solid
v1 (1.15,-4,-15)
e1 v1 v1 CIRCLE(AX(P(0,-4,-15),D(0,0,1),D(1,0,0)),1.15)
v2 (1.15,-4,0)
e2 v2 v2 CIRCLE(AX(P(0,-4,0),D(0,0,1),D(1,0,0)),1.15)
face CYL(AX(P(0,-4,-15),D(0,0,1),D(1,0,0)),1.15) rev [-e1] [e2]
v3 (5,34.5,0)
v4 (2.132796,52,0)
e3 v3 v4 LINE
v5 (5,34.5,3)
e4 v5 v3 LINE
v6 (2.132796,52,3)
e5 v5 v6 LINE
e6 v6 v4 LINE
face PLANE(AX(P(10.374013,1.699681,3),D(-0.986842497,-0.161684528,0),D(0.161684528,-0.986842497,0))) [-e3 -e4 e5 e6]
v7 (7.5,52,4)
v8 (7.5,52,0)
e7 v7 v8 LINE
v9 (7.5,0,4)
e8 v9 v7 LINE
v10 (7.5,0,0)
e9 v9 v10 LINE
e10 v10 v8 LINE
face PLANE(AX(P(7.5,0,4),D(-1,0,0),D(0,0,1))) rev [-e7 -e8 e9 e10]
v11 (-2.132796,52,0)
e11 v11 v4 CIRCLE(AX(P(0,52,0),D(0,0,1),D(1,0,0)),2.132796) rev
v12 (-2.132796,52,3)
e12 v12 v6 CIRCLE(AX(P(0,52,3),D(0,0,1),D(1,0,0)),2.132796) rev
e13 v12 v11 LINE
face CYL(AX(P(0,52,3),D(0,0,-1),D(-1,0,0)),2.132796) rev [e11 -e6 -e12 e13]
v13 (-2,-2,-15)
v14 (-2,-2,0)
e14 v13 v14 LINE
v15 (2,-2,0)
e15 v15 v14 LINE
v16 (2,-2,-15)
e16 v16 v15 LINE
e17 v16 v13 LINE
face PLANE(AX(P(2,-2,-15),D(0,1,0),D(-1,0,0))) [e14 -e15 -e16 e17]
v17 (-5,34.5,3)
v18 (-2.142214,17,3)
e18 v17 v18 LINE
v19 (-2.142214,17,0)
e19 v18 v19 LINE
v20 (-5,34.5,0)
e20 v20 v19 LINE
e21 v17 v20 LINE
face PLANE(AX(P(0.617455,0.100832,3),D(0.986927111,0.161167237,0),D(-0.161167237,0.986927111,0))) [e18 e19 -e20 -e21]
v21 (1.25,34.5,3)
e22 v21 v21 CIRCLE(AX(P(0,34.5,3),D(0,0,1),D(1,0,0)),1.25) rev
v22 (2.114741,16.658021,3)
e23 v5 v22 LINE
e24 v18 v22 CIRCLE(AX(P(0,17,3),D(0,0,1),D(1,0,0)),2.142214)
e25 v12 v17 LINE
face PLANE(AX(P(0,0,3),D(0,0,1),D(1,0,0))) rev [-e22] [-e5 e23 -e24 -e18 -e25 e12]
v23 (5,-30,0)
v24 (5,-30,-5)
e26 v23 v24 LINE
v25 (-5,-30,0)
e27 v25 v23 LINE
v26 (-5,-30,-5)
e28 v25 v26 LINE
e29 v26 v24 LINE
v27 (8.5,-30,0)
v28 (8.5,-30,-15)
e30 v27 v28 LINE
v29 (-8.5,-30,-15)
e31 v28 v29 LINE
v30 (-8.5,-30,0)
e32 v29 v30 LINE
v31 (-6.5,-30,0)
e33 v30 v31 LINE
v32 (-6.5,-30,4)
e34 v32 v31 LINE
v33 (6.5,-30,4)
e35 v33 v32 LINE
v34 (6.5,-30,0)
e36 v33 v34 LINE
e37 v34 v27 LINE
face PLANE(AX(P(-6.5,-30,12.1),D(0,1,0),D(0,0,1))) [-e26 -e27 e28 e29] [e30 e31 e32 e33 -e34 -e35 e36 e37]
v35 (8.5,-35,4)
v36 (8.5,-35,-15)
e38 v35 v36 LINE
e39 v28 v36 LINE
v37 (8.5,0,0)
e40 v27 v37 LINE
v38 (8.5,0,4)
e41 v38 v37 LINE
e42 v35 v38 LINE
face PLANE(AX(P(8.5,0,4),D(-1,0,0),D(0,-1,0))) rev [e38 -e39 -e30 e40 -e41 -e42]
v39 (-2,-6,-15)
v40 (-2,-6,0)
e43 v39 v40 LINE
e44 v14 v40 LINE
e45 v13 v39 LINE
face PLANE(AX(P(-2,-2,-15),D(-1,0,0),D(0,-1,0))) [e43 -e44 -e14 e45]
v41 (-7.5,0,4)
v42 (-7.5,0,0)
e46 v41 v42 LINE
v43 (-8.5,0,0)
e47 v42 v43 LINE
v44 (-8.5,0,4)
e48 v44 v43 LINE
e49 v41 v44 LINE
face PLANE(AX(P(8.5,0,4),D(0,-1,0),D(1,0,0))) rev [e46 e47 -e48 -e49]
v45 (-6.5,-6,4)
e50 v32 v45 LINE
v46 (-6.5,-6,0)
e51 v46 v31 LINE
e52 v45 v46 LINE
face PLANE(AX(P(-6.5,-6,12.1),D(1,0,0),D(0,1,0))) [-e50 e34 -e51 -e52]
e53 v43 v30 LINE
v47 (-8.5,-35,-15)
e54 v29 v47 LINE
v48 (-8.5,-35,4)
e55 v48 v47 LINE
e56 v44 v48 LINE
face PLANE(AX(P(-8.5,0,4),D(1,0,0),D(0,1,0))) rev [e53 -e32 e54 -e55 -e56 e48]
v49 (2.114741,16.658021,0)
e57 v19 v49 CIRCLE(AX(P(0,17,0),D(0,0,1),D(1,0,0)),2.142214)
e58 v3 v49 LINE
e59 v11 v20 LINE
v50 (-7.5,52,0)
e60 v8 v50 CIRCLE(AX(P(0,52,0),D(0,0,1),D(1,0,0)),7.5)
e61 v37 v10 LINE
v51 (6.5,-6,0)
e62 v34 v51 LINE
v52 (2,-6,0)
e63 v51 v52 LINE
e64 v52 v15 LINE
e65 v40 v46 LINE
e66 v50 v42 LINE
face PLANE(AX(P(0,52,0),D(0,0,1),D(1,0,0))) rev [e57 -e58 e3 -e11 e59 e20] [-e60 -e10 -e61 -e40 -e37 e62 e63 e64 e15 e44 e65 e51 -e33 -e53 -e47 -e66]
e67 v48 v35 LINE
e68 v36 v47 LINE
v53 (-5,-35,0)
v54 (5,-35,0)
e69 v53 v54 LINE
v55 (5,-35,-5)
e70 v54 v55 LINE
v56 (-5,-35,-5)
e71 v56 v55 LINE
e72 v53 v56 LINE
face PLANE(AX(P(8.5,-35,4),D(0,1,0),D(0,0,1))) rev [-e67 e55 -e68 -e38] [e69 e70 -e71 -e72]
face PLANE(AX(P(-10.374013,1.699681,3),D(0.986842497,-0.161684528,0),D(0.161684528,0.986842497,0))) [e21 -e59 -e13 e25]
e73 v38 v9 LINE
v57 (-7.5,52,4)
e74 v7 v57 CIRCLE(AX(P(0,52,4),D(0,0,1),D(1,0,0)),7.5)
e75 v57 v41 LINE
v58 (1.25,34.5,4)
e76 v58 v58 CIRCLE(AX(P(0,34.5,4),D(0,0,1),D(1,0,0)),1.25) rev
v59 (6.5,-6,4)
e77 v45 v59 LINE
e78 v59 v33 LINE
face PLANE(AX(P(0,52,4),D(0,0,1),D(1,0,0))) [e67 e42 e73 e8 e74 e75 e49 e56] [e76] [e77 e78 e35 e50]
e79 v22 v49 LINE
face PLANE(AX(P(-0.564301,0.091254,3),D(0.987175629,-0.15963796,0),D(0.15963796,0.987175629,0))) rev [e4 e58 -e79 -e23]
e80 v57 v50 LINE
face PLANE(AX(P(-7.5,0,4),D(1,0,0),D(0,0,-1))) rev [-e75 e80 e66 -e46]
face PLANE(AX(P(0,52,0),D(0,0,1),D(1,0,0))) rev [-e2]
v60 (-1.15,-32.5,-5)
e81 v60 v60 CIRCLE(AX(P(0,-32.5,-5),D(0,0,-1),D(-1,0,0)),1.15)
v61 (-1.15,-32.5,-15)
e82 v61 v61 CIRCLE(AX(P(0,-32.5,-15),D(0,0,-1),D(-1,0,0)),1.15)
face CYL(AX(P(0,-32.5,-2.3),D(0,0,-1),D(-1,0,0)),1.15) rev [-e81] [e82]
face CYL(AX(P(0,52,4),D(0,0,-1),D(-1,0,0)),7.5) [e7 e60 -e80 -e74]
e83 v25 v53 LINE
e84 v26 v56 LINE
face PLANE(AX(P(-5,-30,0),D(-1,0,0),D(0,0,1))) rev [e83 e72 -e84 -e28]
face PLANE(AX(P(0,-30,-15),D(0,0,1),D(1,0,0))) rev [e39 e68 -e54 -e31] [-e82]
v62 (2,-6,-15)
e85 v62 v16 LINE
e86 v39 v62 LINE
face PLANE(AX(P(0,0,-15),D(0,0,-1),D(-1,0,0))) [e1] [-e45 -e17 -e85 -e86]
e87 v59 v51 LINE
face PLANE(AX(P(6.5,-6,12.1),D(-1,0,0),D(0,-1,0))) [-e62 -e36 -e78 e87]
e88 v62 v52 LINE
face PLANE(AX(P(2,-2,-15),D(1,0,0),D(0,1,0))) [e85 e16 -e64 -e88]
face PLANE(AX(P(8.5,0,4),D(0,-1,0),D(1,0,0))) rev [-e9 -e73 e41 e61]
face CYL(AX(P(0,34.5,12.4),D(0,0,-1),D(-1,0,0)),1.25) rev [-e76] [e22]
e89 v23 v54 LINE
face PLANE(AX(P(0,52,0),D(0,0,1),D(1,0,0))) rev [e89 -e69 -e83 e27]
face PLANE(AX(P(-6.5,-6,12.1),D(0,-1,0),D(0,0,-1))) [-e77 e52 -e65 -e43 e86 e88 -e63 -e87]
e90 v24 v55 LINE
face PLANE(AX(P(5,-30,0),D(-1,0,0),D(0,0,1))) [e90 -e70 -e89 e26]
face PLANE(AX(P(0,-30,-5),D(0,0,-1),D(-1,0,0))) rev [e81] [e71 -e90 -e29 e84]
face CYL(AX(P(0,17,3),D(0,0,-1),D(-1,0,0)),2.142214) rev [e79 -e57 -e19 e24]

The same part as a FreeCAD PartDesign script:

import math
import FreeCAD as App
import Part
import Sketcher
from FreeCAD import Vector

doc = App.newDocument("Part")
params = doc.addObject("Spreadsheet::Sheet", "Params")
for row, (alias, value) in enumerate([
    ("sketch1_radius", "7.5 mm"),
    ("sketch1_height", "52 mm"),
    ("pad1_length", "4 mm"),
    ("pocket1_length", "3 mm"),
    ("sketch3_diameter", "2.5 mm"),
    ("pocket2_length", "12.4 mm"),
    ("sketch4_width", "17 mm"),
    ("sketch4_height", "35 mm"),
    ("pad2_length", "4 mm"),
    ("sketch5_width", "13 mm"),
    ("sketch5_height", "24 mm"),
    ("pocket3_length", "12.1 mm"),
    ("sketch6_diameter", "2.3 mm"),
    ("sketch6_width", "4 mm"),
    ("pad3_length", "15 mm"),
    ("sketch7_width", "10 mm"),
    ("sketch7_width2", "17 mm"),
    ("sketch7_height", "5 mm"),
    ("sketch7_height2", "15 mm"),
    ("pad4_length", "5 mm"),
    ("sketch8_diameter", "2.3 mm"),
    ("pocket4_length", "12.7 mm"),
], start=1):
    params.set(f"A{row}", alias)
    params.set(f"B{row}", "=" + value)
    params.setAlias(f"B{row}", alias)

body = doc.addObject("PartDesign::Body", "Body")

# Sketch on XY plane
sketch1 = doc.addObject("Sketcher::SketchObject", "Sketch")
body.addObject(sketch1)
sketch1.AttachmentSupport = (doc.XY_Plane, [""])
sketch1.MapMode = "FlatFace"
sketch1.addGeometry([
    Part.LineSegment(Vector(8, 0, 0), Vector(8, 52, 0)),
    Part.ArcOfCircle(Part.Circle(Vector(0, 52, 0), Vector(0, 0, 1), 8), math.radians(0), math.radians(180)),
    Part.LineSegment(Vector(-8, 52, 0), Vector(-8, 0, 0)),
    Part.LineSegment(Vector(-8, 0, 0), Vector(8, 0, 0)),
], False)
sketch1.addConstraint([
    Sketcher.Constraint("Tangent", 0, 2, 1, 1),
    Sketcher.Constraint("Tangent", 1, 2, 2, 1),
    Sketcher.Constraint("Coincident", 2, 2, 3, 1),
    Sketcher.Constraint("Coincident", 3, 2, 0, 1),
    Sketcher.Constraint("Vertical", 0),
    Sketcher.Constraint("Vertical", 2),
    Sketcher.Constraint("Horizontal", 3),
    Sketcher.Constraint("Symmetric", 2, 2, 3, 2, -1, 1),
    Sketcher.Constraint("Radius", 1, 7.5),
    Sketcher.Constraint("DistanceY", 0, 1, 0, 2, 52.0),
])
sketch1.setExpression("Constraints[8]", "Params.sketch1_radius")
sketch1.setExpression("Constraints[9]", "Params.sketch1_height")
pad1 = doc.addObject("PartDesign::Pad", "Pad")
body.addObject(pad1)
pad1.Profile = sketch1
pad1.setExpression("Length", "Params.pad1_length")

# Sketch on XY plane
sketch2 = doc.addObject("Sketcher::SketchObject", "Sketch001")
body.addObject(sketch2)
sketch2.AttachmentSupport = (doc.XY_Plane, [""])
sketch2.MapMode = "FlatFace"
sketch2.addGeometry([
    Part.ArcOfCircle(Part.Circle(Vector(0, 52, 0), Vector(0, 0, 1), 2.1), math.radians(0), math.radians(180)),  # 0
    Part.LineSegment(Vector(-2.1, 52, 0), Vector(-5, 34.5, 0)),  # 1
    Part.LineSegment(Vector(-5, 34.5, 0), Vector(-2.1, 17, 0)),  # 2
    Part.ArcOfCircle(Part.Circle(Vector(0, 17, 0), Vector(0, 0, 1), 2.1), math.radians(180), math.radians(351)),  # 3
    Part.LineSegment(Vector(2.1, 16.7, 0), Vector(5, 34.5, 0)),  # 4
    Part.LineSegment(Vector(5, 34.5, 0), Vector(2.1, 52, 0)),  # 5
], False)
sketch2.addConstraint([
    Sketcher.Constraint("Coincident", 0, 2, 1, 1),
    Sketcher.Constraint("Coincident", 1, 2, 2, 1),
    Sketcher.Constraint("Coincident", 2, 2, 3, 1),
    Sketcher.Constraint("Tangent", 3, 2, 4, 1),
    Sketcher.Constraint("Coincident", 4, 2, 5, 1),
    Sketcher.Constraint("Coincident", 5, 2, 0, 1),
    Sketcher.Constraint("Symmetric", 1, 2, 4, 2, -2),
    Sketcher.Constraint("Symmetric", 0, 2, 5, 2, -2),
    Sketcher.Constraint("PointOnObject", 3, 3, -2),
    Sketcher.Constraint("Horizontal", 3, 3, 2, 2),
    Sketcher.Constraint("DistanceY", -1, 1, 0, 3, 52.0),
    Sketcher.Constraint("DistanceY", -1, 1, 3, 3, 17.0),
    Sketcher.Constraint("DistanceY", -1, 1, 0, 2, 52.0),
    Sketcher.Constraint("DistanceX", 1, 2, -1, 1, 5.0),
    Sketcher.Constraint("DistanceY", -1, 1, 1, 2, 34.5),
    Sketcher.Constraint("Radius", 0, 2.132796),
    Sketcher.Constraint("Radius", 3, 2.142214),
])
pocket1 = doc.addObject("PartDesign::Pocket", "Pocket")
body.addObject(pocket1)
pocket1.Profile = sketch2
pocket1.setExpression("Length", "Params.pocket1_length")
pocket1.Reversed = True

# Sketch on XY plane
sketch3 = doc.addObject("Sketcher::SketchObject", "Sketch002")
body.addObject(sketch3)
sketch3.AttachmentSupport = (doc.XY_Plane, [""])
sketch3.MapMode = "FlatFace"
sketch3.addGeometry(Part.Circle(Vector(0, 34.5, 0), Vector(0, 0, 1), 1.2), False)
sketch3.addConstraint([
    Sketcher.Constraint("PointOnObject", 0, 3, -2),
    Sketcher.Constraint("Diameter", 0, 2.5),
    Sketcher.Constraint("DistanceY", -1, 1, 0, 3, 34.5),
])
sketch3.setExpression("Constraints[1]", "Params.sketch3_diameter")
pocket2 = doc.addObject("PartDesign::Pocket", "Pocket001")
body.addObject(pocket2)
pocket2.Profile = sketch3
pocket2.setExpression("Length", "Params.pocket2_length")
pocket2.Reversed = True

# Sketch on XY plane
sketch4 = doc.addObject("Sketcher::SketchObject", "Sketch003")
body.addObject(sketch4)
sketch4.AttachmentSupport = (doc.XY_Plane, [""])
sketch4.MapMode = "FlatFace"
sketch4.addGeometry([
    Part.LineSegment(Vector(-8, 0, 0), Vector(-8, -35, 0)),
    Part.LineSegment(Vector(-8, -35, 0), Vector(8, -35, 0)),
    Part.LineSegment(Vector(8, -35, 0), Vector(8, 0, 0)),
    Part.LineSegment(Vector(8, 0, 0), Vector(-8, 0, 0)),
], False)
sketch4.addConstraint([
    Sketcher.Constraint("Coincident", 0, 2, 1, 1),
    Sketcher.Constraint("Coincident", 1, 2, 2, 1),
    Sketcher.Constraint("Coincident", 2, 2, 3, 1),
    Sketcher.Constraint("Coincident", 3, 2, 0, 1),
    Sketcher.Constraint("Vertical", 0),
    Sketcher.Constraint("Horizontal", 1),
    Sketcher.Constraint("Vertical", 2),
    Sketcher.Constraint("Horizontal", 3),
    Sketcher.Constraint("Symmetric", 2, 2, 3, 2, -1, 1),
    Sketcher.Constraint("DistanceX", 1, 1, 1, 2, 17.0),
    Sketcher.Constraint("DistanceY", 0, 2, 0, 1, 35.0),
])
sketch4.setExpression("Constraints[9]", "Params.sketch4_width")
sketch4.setExpression("Constraints[10]", "Params.sketch4_height")
pad2 = doc.addObject("PartDesign::Pad", "Pad001")
body.addObject(pad2)
pad2.Profile = sketch4
pad2.setExpression("Length", "Params.pad2_length")

# Sketch on XY plane
sketch5 = doc.addObject("Sketcher::SketchObject", "Sketch004")
body.addObject(sketch5)
sketch5.AttachmentSupport = (doc.XY_Plane, [""])
sketch5.MapMode = "FlatFace"
sketch5.addGeometry([
    Part.LineSegment(Vector(-6, -6, 0), Vector(-6, -30, 0)),
    Part.LineSegment(Vector(-6, -30, 0), Vector(6, -30, 0)),
    Part.LineSegment(Vector(6, -30, 0), Vector(6, -6, 0)),
    Part.LineSegment(Vector(6, -6, 0), Vector(-6, -6, 0)),
], False)
sketch5.addConstraint([
    Sketcher.Constraint("Coincident", 0, 2, 1, 1),
    Sketcher.Constraint("Coincident", 1, 2, 2, 1),
    Sketcher.Constraint("Coincident", 2, 2, 3, 1),
    Sketcher.Constraint("Coincident", 3, 2, 0, 1),
    Sketcher.Constraint("Vertical", 0),
    Sketcher.Constraint("Horizontal", 1),
    Sketcher.Constraint("Vertical", 2),
    Sketcher.Constraint("Horizontal", 3),
    Sketcher.Constraint("DistanceX", 1, 1, 1, 2, 13.0),
    Sketcher.Constraint("DistanceY", 0, 2, 0, 1, 24.0),
    Sketcher.Constraint("DistanceY", 0, 2, -1, 1, 30.0),
    Sketcher.Constraint("DistanceX", 0, 2, -1, 1, 6.5),
])
sketch5.setExpression("Constraints[8]", "Params.sketch5_width")
sketch5.setExpression("Constraints[9]", "Params.sketch5_height")
pocket3 = doc.addObject("PartDesign::Pocket", "Pocket002")
body.addObject(pocket3)
pocket3.Profile = sketch5
pocket3.setExpression("Length", "Params.pocket3_length")
pocket3.Reversed = True

# Sketch on XY plane
sketch6 = doc.addObject("Sketcher::SketchObject", "Sketch005")
body.addObject(sketch6)
sketch6.AttachmentSupport = (doc.XY_Plane, [""])
sketch6.MapMode = "FlatFace"
sketch6.addGeometry([
    Part.LineSegment(Vector(-2, -2, 0), Vector(-2, -6, 0)),  # 0
    Part.LineSegment(Vector(-2, -6, 0), Vector(2, -6, 0)),  # 1
    Part.LineSegment(Vector(2, -6, 0), Vector(2, -2, 0)),  # 2
    Part.LineSegment(Vector(2, -2, 0), Vector(-2, -2, 0)),  # 3
    Part.Circle(Vector(0, -4, 0), Vector(0, 0, 1), 1.1),  # 4
], False)
sketch6.addConstraint([
    Sketcher.Constraint("Coincident", 0, 2, 1, 1),
    Sketcher.Constraint("Coincident", 1, 2, 2, 1),
    Sketcher.Constraint("Coincident", 2, 2, 3, 1),
    Sketcher.Constraint("Coincident", 3, 2, 0, 1),
    Sketcher.Constraint("Vertical", 0),
    Sketcher.Constraint("Horizontal", 1),
    Sketcher.Constraint("Vertical", 2),
    Sketcher.Constraint("Horizontal", 3),
    Sketcher.Constraint("PointOnObject", 4, 3, -2),
    Sketcher.Constraint("Equal", 3, 0),
    Sketcher.Constraint("Diameter", 4, 2.3),
    Sketcher.Constraint("DistanceX", 1, 1, 1, 2, 4.0),
    Sketcher.Constraint("DistanceY", 4, 3, -1, 1, 4.0),
    Sketcher.Constraint("DistanceX", 0, 2, -1, 1, 2.0),
    Sketcher.Constraint("DistanceY", 0, 2, -1, 1, 6.0),
])
sketch6.setExpression("Constraints[10]", "Params.sketch6_diameter")
sketch6.setExpression("Constraints[11]", "Params.sketch6_width")
pad3 = doc.addObject("PartDesign::Pad", "Pad002")
body.addObject(pad3)
pad3.Profile = sketch6
pad3.setExpression("Length", "Params.pad3_length")
pad3.Reversed = True

# Sketch on XZ plane
sketch7 = doc.addObject("Sketcher::SketchObject", "Sketch006")
body.addObject(sketch7)
sketch7.AttachmentSupport = (doc.XZ_Plane, [""])
sketch7.MapMode = "FlatFace"
sketch7.AttachmentOffset = App.Placement(Vector(0, 0, 35), App.Rotation())
sketch7.addGeometry([
    Part.LineSegment(Vector(-8.5, 0, 0), Vector(-5, 0, 0)),  # 0
    Part.LineSegment(Vector(-5, 0, 0), Vector(-5, -5, 0)),  # 1
    Part.LineSegment(Vector(-5, -5, 0), Vector(5, -5, 0)),  # 2
    Part.LineSegment(Vector(5, -5, 0), Vector(5, 0, 0)),  # 3
    Part.LineSegment(Vector(5, 0, 0), Vector(8.5, 0, 0)),  # 4
    Part.LineSegment(Vector(8.5, 0, 0), Vector(8.5, -15, 0)),  # 5
    Part.LineSegment(Vector(8.5, -15, 0), Vector(-8.5, -15, 0)),  # 6
    Part.LineSegment(Vector(-8.5, -15, 0), Vector(-8.5, 0, 0)),  # 7
], False)
sketch7.addConstraint([
    Sketcher.Constraint("Coincident", 0, 2, 1, 1),
    Sketcher.Constraint("Coincident", 1, 2, 2, 1),
    Sketcher.Constraint("Coincident", 2, 2, 3, 1),
    Sketcher.Constraint("Coincident", 3, 2, 4, 1),
    Sketcher.Constraint("Coincident", 4, 2, 5, 1),
    Sketcher.Constraint("Coincident", 5, 2, 6, 1),
    Sketcher.Constraint("Coincident", 6, 2, 7, 1),
    Sketcher.Constraint("Coincident", 7, 2, 0, 1),
    Sketcher.Constraint("Horizontal", 0),
    Sketcher.Constraint("Vertical", 1),
    Sketcher.Constraint("Horizontal", 2),
    Sketcher.Constraint("Vertical", 3),
    Sketcher.Constraint("Horizontal", 4),
    Sketcher.Constraint("Vertical", 5),
    Sketcher.Constraint("Horizontal", 6),
    Sketcher.Constraint("Vertical", 7),
    Sketcher.Constraint("Symmetric", 0, 2, 3, 2, -1, 1),
    Sketcher.Constraint("Symmetric", 4, 2, 7, 2, -2),
    Sketcher.Constraint("DistanceX", 2, 1, 2, 2, 10.0),
    Sketcher.Constraint("DistanceX", 6, 2, 6, 1, 17.0),
    Sketcher.Constraint("DistanceY", 1, 2, 1, 1, 5.0),
    Sketcher.Constraint("DistanceY", 5, 2, 5, 1, 15.0),
])
sketch7.setExpression("Constraints[18]", "Params.sketch7_width")
sketch7.setExpression("Constraints[19]", "Params.sketch7_width2")
sketch7.setExpression("Constraints[20]", "Params.sketch7_height")
sketch7.setExpression("Constraints[21]", "Params.sketch7_height2")
pad4 = doc.addObject("PartDesign::Pad", "Pad003")
body.addObject(pad4)
pad4.Profile = sketch7
pad4.setExpression("Length", "Params.pad4_length")
pad4.Reversed = True

# Sketch on XY plane
sketch8 = doc.addObject("Sketcher::SketchObject", "Sketch007")
body.addObject(sketch8)
sketch8.AttachmentSupport = (doc.XY_Plane, [""])
sketch8.MapMode = "FlatFace"
sketch8.AttachmentOffset = App.Placement(Vector(0, 0, -15), App.Rotation())
sketch8.addGeometry(Part.Circle(Vector(0, -32.5, 0), Vector(0, 0, 1), 1.1), False)
sketch8.addConstraint([
    Sketcher.Constraint("PointOnObject", 0, 3, -2),
    Sketcher.Constraint("Diameter", 0, 2.3),
    Sketcher.Constraint("DistanceY", 0, 3, -1, 1, 32.5),
])
sketch8.setExpression("Constraints[1]", "Params.sketch8_diameter")
pocket4 = doc.addObject("PartDesign::Pocket", "Pocket003")
body.addObject(pocket4)
pocket4.Profile = sketch8
pocket4.setExpression("Length", "Params.pocket4_length")
pocket4.Reversed = True

doc.recompute()
